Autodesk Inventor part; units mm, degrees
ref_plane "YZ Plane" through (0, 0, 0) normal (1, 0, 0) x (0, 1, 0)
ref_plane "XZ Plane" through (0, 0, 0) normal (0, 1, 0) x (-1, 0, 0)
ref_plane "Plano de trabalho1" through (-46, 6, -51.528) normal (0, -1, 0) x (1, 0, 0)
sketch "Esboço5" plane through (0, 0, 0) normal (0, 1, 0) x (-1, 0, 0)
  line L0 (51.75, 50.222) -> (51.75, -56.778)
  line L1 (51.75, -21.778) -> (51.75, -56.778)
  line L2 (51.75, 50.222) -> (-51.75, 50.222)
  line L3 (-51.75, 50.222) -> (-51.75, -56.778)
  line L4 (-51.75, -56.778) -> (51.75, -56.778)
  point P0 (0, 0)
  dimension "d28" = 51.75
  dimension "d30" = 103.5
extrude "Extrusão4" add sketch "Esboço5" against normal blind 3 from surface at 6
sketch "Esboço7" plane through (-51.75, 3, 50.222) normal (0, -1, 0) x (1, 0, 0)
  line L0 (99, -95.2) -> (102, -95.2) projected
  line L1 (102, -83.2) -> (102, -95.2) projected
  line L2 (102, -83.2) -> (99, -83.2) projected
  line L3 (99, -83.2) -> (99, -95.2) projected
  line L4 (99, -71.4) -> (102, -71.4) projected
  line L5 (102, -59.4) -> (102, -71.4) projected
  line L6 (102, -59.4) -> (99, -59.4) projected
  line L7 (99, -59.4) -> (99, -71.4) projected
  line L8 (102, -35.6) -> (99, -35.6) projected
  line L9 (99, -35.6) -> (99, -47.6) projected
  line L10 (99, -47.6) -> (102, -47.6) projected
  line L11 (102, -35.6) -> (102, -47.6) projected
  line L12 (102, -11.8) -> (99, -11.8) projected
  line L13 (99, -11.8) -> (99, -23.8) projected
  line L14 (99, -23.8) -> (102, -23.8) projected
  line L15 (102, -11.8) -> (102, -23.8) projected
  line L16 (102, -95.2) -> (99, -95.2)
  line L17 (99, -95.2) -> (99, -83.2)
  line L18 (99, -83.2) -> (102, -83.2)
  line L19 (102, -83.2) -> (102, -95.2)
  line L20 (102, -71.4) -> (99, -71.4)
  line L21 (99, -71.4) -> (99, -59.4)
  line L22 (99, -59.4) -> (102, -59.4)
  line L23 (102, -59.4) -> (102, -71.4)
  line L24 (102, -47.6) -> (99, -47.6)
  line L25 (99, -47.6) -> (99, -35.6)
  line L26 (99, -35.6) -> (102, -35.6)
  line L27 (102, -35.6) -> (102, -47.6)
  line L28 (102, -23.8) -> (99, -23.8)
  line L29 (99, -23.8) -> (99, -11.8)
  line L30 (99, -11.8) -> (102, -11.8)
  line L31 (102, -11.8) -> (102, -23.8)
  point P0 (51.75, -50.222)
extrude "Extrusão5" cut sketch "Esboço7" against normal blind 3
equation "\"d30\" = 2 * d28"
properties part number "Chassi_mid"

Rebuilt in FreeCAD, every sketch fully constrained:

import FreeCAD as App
import Part
import Sketcher

doc = App.newDocument("Part")
params = doc.addObject("Spreadsheet::Sheet", "Params")
for row, (alias, value) in enumerate([
    ("sketch1_width", "103.5 mm"),
    ("sketch1_height", "107 mm"),
    ("pad1_length", "3 mm"),
    ("sketch2_width", "3 mm"),
    ("sketch2_height", "12 mm"),
    ("pocket1_length", "3 mm"),
], start=1):
    params.set(f"A{row}", alias)
    params.set(f"B{row}", "=" + value)
    params.setAlias(f"B{row}", alias)

body = doc.addObject("PartDesign::Body", "Body")

sketch1 = body.newObject("Sketcher::SketchObject", "Sketch")
sketch1.AttachmentSupport = (doc.getObject("XZ_Plane"), [""])
sketch1.MapMode = "FlatFace"
sketch1.AttachmentOffset = App.Placement(App.Vector(0, 0, -6), App.Rotation())
sketch1.addGeometry([
    Part.LineSegment(App.Vector(-52, -57, 0), App.Vector(-52, 50, 0)),
    Part.LineSegment(App.Vector(-52, 50, 0), App.Vector(52, 50, 0)),
    Part.LineSegment(App.Vector(52, 50, 0), App.Vector(52, -57, 0)),
    Part.LineSegment(App.Vector(52, -57, 0), App.Vector(-52, -57, 0)),
], False)
sketch1.addConstraint([
    Sketcher.Constraint("Coincident", 0, 2, 1, 1),
    Sketcher.Constraint("Coincident", 1, 2, 2, 1),
    Sketcher.Constraint("Coincident", 2, 2, 3, 1),
    Sketcher.Constraint("Coincident", 3, 2, 0, 1),
    Sketcher.Constraint("Vertical", 0),
    Sketcher.Constraint("Horizontal", 1),
    Sketcher.Constraint("Vertical", 2),
    Sketcher.Constraint("Horizontal", 3),
    Sketcher.Constraint("DistanceX", 1, 1, 1, 2, 103.5),
    Sketcher.Constraint("DistanceY", 0, 1, 0, 2, 107.0),
    Sketcher.Constraint("DistanceX", 0, 2, -1, 1, 51.75),
    Sketcher.Constraint("DistanceY", -1, 1, 0, 2, 50.222),
])
sketch1.setExpression("Constraints[8]", "Params.sketch1_width")
sketch1.setExpression("Constraints[9]", "Params.sketch1_height")
pad1 = body.newObject("PartDesign::Pad", "Pad")
pad1.Profile = sketch1
pad1.setExpression("Length", "Params.pad1_length")

sketch2 = body.newObject("Sketcher::SketchObject", "Sketch001")
sketch2.AttachmentSupport = (doc.getObject("XZ_Plane"), [""])
sketch2.MapMode = "FlatFace"
sketch2.AttachmentOffset = App.Placement(App.Vector(0, 0, -3), App.Rotation())
sketch2.addGeometry([
    Part.LineSegment(App.Vector(47.2, -33, 0), App.Vector(47.2, -45, 0)),
    Part.LineSegment(App.Vector(47.2, -45, 0), App.Vector(50.2, -45, 0)),
    Part.LineSegment(App.Vector(50.2, -45, 0), App.Vector(50.2, -33, 0)),
    Part.LineSegment(App.Vector(50.2, -33, 0), App.Vector(47.2, -33, 0)),
    Part.LineSegment(App.Vector(47.2, -9.2, 0), App.Vector(47.2, -21.2, 0)),
    Part.LineSegment(App.Vector(47.2, -21.2, 0), App.Vector(50.2, -21.2, 0)),
    Part.LineSegment(App.Vector(50.2, -21.2, 0), App.Vector(50.2, -9.2, 0)),
    Part.LineSegment(App.Vector(50.2, -9.2, 0), App.Vector(47.2, -9.2, 0)),
    Part.LineSegment(App.Vector(50.2, 2.6, 0), App.Vector(50.2, 14.6, 0)),
    Part.LineSegment(App.Vector(50.2, 14.6, 0), App.Vector(47.2, 14.6, 0)),
    Part.LineSegment(App.Vector(47.2, 14.6, 0), App.Vector(47.2, 2.6, 0)),
    Part.LineSegment(App.Vector(47.2, 2.6, 0), App.Vector(50.2, 2.6, 0)),
    Part.LineSegment(App.Vector(50.2, 26.4, 0), App.Vector(50.2, 38.4, 0)),
    Part.LineSegment(App.Vector(50.2, 38.4, 0), App.Vector(47.2, 38.4, 0)),
    Part.LineSegment(App.Vector(47.2, 38.4, 0), App.Vector(47.2, 26.4, 0)),
    Part.LineSegment(App.Vector(47.2, 26.4, 0), App.Vector(50.2, 26.4, 0)),
], False)
sketch2.addConstraint([
    Sketcher.Constraint("Coincident", 0, 2, 1, 1),
    Sketcher.Constraint("Coincident", 1, 2, 2, 1),
    Sketcher.Constraint("Coincident", 2, 2, 3, 1),
    Sketcher.Constraint("Coincident", 3, 2, 0, 1),
    Sketcher.Constraint("Coincident", 4, 2, 5, 1),
    Sketcher.Constraint("Coincident", 5, 2, 6, 1),
    Sketcher.Constraint("Coincident", 6, 2, 7, 1),
    Sketcher.Constraint("Coincident", 7, 2, 4, 1),
    Sketcher.Constraint("Coincident", 8, 2, 9, 1),
    Sketcher.Constraint("Coincident", 9, 2, 10, 1),
    Sketcher.Constraint("Coincident", 10, 2, 11, 1),
    Sketcher.Constraint("Coincident", 11, 2, 8, 1),
    Sketcher.Constraint("Coincident", 12, 2, 13, 1),
    Sketcher.Constraint("Coincident", 13, 2, 14, 1),
    Sketcher.Constraint("Coincident", 14, 2, 15, 1),
    Sketcher.Constraint("Coincident", 15, 2, 12, 1),
    Sketcher.Constraint("Vertical", 0),
    Sketcher.Constraint("Horizontal", 1),
    Sketcher.Constraint("Vertical", 2),
    Sketcher.Constraint("Horizontal", 3),
    Sketcher.Constraint("Vertical", 4),
    Sketcher.Constraint("Horizontal", 5),
    Sketcher.Constraint("Vertical", 6),
    Sketcher.Constraint("Horizontal", 7),
    Sketcher.Constraint("Vertical", 8),
    Sketcher.Constraint("Horizontal", 9),
    Sketcher.Constraint("Vertical", 10),
    Sketcher.Constraint("Horizontal", 11),
    Sketcher.Constraint("Vertical", 12),
    Sketcher.Constraint("Horizontal", 13),
    Sketcher.Constraint("Vertical", 14),
    Sketcher.Constraint("Horizontal", 15),
    Sketcher.Constraint("Vertical", 3, 2, 4, 2),
    Sketcher.Constraint("Vertical", 2, 2, 5, 2),
    Sketcher.Constraint("Vertical", 6, 2, 8, 2),
    Sketcher.Constraint("Vertical", 7, 2, 9, 2),
    Sketcher.Constraint("Vertical", 11, 2, 12, 2),
    Sketcher.Constraint("Vertical", 10, 2, 13, 2),
    Sketcher.Constraint("Equal", 2, 4),
    Sketcher.Constraint("Equal", 6, 8),
    Sketcher.Constraint("Equal", 10, 12),
    Sketcher.Constraint("DistanceX", 1, 1, 1, 2, 3.0),
    Sketcher.Constraint("DistanceY", 0, 2, 0, 1, 12.0),
    Sketcher.Constraint("DistanceY", 3, 2, 4, 2, 11.8),
    Sketcher.Constraint("DistanceY", 6, 2, 8, 2, 23.8),
    Sketcher.Constraint("DistanceY", 8, 2, 12, 2, 23.8),
    Sketcher.Constraint("DistanceX", -1, 1, 0, 2, 47.25),
    Sketcher.Constraint("DistanceY", 0, 2, -1, 1, 44.978),
])
sketch2.setExpression("Constraints[41]", "Params.sketch2_width")
sketch2.setExpression("Constraints[42]", "Params.sketch2_height")
pocket1 = body.newObject("PartDesign::Pocket", "Pocket")
pocket1.Profile = sketch2
pocket1.setExpression("Length", "Params.pocket1_length")

doc.recompute()
